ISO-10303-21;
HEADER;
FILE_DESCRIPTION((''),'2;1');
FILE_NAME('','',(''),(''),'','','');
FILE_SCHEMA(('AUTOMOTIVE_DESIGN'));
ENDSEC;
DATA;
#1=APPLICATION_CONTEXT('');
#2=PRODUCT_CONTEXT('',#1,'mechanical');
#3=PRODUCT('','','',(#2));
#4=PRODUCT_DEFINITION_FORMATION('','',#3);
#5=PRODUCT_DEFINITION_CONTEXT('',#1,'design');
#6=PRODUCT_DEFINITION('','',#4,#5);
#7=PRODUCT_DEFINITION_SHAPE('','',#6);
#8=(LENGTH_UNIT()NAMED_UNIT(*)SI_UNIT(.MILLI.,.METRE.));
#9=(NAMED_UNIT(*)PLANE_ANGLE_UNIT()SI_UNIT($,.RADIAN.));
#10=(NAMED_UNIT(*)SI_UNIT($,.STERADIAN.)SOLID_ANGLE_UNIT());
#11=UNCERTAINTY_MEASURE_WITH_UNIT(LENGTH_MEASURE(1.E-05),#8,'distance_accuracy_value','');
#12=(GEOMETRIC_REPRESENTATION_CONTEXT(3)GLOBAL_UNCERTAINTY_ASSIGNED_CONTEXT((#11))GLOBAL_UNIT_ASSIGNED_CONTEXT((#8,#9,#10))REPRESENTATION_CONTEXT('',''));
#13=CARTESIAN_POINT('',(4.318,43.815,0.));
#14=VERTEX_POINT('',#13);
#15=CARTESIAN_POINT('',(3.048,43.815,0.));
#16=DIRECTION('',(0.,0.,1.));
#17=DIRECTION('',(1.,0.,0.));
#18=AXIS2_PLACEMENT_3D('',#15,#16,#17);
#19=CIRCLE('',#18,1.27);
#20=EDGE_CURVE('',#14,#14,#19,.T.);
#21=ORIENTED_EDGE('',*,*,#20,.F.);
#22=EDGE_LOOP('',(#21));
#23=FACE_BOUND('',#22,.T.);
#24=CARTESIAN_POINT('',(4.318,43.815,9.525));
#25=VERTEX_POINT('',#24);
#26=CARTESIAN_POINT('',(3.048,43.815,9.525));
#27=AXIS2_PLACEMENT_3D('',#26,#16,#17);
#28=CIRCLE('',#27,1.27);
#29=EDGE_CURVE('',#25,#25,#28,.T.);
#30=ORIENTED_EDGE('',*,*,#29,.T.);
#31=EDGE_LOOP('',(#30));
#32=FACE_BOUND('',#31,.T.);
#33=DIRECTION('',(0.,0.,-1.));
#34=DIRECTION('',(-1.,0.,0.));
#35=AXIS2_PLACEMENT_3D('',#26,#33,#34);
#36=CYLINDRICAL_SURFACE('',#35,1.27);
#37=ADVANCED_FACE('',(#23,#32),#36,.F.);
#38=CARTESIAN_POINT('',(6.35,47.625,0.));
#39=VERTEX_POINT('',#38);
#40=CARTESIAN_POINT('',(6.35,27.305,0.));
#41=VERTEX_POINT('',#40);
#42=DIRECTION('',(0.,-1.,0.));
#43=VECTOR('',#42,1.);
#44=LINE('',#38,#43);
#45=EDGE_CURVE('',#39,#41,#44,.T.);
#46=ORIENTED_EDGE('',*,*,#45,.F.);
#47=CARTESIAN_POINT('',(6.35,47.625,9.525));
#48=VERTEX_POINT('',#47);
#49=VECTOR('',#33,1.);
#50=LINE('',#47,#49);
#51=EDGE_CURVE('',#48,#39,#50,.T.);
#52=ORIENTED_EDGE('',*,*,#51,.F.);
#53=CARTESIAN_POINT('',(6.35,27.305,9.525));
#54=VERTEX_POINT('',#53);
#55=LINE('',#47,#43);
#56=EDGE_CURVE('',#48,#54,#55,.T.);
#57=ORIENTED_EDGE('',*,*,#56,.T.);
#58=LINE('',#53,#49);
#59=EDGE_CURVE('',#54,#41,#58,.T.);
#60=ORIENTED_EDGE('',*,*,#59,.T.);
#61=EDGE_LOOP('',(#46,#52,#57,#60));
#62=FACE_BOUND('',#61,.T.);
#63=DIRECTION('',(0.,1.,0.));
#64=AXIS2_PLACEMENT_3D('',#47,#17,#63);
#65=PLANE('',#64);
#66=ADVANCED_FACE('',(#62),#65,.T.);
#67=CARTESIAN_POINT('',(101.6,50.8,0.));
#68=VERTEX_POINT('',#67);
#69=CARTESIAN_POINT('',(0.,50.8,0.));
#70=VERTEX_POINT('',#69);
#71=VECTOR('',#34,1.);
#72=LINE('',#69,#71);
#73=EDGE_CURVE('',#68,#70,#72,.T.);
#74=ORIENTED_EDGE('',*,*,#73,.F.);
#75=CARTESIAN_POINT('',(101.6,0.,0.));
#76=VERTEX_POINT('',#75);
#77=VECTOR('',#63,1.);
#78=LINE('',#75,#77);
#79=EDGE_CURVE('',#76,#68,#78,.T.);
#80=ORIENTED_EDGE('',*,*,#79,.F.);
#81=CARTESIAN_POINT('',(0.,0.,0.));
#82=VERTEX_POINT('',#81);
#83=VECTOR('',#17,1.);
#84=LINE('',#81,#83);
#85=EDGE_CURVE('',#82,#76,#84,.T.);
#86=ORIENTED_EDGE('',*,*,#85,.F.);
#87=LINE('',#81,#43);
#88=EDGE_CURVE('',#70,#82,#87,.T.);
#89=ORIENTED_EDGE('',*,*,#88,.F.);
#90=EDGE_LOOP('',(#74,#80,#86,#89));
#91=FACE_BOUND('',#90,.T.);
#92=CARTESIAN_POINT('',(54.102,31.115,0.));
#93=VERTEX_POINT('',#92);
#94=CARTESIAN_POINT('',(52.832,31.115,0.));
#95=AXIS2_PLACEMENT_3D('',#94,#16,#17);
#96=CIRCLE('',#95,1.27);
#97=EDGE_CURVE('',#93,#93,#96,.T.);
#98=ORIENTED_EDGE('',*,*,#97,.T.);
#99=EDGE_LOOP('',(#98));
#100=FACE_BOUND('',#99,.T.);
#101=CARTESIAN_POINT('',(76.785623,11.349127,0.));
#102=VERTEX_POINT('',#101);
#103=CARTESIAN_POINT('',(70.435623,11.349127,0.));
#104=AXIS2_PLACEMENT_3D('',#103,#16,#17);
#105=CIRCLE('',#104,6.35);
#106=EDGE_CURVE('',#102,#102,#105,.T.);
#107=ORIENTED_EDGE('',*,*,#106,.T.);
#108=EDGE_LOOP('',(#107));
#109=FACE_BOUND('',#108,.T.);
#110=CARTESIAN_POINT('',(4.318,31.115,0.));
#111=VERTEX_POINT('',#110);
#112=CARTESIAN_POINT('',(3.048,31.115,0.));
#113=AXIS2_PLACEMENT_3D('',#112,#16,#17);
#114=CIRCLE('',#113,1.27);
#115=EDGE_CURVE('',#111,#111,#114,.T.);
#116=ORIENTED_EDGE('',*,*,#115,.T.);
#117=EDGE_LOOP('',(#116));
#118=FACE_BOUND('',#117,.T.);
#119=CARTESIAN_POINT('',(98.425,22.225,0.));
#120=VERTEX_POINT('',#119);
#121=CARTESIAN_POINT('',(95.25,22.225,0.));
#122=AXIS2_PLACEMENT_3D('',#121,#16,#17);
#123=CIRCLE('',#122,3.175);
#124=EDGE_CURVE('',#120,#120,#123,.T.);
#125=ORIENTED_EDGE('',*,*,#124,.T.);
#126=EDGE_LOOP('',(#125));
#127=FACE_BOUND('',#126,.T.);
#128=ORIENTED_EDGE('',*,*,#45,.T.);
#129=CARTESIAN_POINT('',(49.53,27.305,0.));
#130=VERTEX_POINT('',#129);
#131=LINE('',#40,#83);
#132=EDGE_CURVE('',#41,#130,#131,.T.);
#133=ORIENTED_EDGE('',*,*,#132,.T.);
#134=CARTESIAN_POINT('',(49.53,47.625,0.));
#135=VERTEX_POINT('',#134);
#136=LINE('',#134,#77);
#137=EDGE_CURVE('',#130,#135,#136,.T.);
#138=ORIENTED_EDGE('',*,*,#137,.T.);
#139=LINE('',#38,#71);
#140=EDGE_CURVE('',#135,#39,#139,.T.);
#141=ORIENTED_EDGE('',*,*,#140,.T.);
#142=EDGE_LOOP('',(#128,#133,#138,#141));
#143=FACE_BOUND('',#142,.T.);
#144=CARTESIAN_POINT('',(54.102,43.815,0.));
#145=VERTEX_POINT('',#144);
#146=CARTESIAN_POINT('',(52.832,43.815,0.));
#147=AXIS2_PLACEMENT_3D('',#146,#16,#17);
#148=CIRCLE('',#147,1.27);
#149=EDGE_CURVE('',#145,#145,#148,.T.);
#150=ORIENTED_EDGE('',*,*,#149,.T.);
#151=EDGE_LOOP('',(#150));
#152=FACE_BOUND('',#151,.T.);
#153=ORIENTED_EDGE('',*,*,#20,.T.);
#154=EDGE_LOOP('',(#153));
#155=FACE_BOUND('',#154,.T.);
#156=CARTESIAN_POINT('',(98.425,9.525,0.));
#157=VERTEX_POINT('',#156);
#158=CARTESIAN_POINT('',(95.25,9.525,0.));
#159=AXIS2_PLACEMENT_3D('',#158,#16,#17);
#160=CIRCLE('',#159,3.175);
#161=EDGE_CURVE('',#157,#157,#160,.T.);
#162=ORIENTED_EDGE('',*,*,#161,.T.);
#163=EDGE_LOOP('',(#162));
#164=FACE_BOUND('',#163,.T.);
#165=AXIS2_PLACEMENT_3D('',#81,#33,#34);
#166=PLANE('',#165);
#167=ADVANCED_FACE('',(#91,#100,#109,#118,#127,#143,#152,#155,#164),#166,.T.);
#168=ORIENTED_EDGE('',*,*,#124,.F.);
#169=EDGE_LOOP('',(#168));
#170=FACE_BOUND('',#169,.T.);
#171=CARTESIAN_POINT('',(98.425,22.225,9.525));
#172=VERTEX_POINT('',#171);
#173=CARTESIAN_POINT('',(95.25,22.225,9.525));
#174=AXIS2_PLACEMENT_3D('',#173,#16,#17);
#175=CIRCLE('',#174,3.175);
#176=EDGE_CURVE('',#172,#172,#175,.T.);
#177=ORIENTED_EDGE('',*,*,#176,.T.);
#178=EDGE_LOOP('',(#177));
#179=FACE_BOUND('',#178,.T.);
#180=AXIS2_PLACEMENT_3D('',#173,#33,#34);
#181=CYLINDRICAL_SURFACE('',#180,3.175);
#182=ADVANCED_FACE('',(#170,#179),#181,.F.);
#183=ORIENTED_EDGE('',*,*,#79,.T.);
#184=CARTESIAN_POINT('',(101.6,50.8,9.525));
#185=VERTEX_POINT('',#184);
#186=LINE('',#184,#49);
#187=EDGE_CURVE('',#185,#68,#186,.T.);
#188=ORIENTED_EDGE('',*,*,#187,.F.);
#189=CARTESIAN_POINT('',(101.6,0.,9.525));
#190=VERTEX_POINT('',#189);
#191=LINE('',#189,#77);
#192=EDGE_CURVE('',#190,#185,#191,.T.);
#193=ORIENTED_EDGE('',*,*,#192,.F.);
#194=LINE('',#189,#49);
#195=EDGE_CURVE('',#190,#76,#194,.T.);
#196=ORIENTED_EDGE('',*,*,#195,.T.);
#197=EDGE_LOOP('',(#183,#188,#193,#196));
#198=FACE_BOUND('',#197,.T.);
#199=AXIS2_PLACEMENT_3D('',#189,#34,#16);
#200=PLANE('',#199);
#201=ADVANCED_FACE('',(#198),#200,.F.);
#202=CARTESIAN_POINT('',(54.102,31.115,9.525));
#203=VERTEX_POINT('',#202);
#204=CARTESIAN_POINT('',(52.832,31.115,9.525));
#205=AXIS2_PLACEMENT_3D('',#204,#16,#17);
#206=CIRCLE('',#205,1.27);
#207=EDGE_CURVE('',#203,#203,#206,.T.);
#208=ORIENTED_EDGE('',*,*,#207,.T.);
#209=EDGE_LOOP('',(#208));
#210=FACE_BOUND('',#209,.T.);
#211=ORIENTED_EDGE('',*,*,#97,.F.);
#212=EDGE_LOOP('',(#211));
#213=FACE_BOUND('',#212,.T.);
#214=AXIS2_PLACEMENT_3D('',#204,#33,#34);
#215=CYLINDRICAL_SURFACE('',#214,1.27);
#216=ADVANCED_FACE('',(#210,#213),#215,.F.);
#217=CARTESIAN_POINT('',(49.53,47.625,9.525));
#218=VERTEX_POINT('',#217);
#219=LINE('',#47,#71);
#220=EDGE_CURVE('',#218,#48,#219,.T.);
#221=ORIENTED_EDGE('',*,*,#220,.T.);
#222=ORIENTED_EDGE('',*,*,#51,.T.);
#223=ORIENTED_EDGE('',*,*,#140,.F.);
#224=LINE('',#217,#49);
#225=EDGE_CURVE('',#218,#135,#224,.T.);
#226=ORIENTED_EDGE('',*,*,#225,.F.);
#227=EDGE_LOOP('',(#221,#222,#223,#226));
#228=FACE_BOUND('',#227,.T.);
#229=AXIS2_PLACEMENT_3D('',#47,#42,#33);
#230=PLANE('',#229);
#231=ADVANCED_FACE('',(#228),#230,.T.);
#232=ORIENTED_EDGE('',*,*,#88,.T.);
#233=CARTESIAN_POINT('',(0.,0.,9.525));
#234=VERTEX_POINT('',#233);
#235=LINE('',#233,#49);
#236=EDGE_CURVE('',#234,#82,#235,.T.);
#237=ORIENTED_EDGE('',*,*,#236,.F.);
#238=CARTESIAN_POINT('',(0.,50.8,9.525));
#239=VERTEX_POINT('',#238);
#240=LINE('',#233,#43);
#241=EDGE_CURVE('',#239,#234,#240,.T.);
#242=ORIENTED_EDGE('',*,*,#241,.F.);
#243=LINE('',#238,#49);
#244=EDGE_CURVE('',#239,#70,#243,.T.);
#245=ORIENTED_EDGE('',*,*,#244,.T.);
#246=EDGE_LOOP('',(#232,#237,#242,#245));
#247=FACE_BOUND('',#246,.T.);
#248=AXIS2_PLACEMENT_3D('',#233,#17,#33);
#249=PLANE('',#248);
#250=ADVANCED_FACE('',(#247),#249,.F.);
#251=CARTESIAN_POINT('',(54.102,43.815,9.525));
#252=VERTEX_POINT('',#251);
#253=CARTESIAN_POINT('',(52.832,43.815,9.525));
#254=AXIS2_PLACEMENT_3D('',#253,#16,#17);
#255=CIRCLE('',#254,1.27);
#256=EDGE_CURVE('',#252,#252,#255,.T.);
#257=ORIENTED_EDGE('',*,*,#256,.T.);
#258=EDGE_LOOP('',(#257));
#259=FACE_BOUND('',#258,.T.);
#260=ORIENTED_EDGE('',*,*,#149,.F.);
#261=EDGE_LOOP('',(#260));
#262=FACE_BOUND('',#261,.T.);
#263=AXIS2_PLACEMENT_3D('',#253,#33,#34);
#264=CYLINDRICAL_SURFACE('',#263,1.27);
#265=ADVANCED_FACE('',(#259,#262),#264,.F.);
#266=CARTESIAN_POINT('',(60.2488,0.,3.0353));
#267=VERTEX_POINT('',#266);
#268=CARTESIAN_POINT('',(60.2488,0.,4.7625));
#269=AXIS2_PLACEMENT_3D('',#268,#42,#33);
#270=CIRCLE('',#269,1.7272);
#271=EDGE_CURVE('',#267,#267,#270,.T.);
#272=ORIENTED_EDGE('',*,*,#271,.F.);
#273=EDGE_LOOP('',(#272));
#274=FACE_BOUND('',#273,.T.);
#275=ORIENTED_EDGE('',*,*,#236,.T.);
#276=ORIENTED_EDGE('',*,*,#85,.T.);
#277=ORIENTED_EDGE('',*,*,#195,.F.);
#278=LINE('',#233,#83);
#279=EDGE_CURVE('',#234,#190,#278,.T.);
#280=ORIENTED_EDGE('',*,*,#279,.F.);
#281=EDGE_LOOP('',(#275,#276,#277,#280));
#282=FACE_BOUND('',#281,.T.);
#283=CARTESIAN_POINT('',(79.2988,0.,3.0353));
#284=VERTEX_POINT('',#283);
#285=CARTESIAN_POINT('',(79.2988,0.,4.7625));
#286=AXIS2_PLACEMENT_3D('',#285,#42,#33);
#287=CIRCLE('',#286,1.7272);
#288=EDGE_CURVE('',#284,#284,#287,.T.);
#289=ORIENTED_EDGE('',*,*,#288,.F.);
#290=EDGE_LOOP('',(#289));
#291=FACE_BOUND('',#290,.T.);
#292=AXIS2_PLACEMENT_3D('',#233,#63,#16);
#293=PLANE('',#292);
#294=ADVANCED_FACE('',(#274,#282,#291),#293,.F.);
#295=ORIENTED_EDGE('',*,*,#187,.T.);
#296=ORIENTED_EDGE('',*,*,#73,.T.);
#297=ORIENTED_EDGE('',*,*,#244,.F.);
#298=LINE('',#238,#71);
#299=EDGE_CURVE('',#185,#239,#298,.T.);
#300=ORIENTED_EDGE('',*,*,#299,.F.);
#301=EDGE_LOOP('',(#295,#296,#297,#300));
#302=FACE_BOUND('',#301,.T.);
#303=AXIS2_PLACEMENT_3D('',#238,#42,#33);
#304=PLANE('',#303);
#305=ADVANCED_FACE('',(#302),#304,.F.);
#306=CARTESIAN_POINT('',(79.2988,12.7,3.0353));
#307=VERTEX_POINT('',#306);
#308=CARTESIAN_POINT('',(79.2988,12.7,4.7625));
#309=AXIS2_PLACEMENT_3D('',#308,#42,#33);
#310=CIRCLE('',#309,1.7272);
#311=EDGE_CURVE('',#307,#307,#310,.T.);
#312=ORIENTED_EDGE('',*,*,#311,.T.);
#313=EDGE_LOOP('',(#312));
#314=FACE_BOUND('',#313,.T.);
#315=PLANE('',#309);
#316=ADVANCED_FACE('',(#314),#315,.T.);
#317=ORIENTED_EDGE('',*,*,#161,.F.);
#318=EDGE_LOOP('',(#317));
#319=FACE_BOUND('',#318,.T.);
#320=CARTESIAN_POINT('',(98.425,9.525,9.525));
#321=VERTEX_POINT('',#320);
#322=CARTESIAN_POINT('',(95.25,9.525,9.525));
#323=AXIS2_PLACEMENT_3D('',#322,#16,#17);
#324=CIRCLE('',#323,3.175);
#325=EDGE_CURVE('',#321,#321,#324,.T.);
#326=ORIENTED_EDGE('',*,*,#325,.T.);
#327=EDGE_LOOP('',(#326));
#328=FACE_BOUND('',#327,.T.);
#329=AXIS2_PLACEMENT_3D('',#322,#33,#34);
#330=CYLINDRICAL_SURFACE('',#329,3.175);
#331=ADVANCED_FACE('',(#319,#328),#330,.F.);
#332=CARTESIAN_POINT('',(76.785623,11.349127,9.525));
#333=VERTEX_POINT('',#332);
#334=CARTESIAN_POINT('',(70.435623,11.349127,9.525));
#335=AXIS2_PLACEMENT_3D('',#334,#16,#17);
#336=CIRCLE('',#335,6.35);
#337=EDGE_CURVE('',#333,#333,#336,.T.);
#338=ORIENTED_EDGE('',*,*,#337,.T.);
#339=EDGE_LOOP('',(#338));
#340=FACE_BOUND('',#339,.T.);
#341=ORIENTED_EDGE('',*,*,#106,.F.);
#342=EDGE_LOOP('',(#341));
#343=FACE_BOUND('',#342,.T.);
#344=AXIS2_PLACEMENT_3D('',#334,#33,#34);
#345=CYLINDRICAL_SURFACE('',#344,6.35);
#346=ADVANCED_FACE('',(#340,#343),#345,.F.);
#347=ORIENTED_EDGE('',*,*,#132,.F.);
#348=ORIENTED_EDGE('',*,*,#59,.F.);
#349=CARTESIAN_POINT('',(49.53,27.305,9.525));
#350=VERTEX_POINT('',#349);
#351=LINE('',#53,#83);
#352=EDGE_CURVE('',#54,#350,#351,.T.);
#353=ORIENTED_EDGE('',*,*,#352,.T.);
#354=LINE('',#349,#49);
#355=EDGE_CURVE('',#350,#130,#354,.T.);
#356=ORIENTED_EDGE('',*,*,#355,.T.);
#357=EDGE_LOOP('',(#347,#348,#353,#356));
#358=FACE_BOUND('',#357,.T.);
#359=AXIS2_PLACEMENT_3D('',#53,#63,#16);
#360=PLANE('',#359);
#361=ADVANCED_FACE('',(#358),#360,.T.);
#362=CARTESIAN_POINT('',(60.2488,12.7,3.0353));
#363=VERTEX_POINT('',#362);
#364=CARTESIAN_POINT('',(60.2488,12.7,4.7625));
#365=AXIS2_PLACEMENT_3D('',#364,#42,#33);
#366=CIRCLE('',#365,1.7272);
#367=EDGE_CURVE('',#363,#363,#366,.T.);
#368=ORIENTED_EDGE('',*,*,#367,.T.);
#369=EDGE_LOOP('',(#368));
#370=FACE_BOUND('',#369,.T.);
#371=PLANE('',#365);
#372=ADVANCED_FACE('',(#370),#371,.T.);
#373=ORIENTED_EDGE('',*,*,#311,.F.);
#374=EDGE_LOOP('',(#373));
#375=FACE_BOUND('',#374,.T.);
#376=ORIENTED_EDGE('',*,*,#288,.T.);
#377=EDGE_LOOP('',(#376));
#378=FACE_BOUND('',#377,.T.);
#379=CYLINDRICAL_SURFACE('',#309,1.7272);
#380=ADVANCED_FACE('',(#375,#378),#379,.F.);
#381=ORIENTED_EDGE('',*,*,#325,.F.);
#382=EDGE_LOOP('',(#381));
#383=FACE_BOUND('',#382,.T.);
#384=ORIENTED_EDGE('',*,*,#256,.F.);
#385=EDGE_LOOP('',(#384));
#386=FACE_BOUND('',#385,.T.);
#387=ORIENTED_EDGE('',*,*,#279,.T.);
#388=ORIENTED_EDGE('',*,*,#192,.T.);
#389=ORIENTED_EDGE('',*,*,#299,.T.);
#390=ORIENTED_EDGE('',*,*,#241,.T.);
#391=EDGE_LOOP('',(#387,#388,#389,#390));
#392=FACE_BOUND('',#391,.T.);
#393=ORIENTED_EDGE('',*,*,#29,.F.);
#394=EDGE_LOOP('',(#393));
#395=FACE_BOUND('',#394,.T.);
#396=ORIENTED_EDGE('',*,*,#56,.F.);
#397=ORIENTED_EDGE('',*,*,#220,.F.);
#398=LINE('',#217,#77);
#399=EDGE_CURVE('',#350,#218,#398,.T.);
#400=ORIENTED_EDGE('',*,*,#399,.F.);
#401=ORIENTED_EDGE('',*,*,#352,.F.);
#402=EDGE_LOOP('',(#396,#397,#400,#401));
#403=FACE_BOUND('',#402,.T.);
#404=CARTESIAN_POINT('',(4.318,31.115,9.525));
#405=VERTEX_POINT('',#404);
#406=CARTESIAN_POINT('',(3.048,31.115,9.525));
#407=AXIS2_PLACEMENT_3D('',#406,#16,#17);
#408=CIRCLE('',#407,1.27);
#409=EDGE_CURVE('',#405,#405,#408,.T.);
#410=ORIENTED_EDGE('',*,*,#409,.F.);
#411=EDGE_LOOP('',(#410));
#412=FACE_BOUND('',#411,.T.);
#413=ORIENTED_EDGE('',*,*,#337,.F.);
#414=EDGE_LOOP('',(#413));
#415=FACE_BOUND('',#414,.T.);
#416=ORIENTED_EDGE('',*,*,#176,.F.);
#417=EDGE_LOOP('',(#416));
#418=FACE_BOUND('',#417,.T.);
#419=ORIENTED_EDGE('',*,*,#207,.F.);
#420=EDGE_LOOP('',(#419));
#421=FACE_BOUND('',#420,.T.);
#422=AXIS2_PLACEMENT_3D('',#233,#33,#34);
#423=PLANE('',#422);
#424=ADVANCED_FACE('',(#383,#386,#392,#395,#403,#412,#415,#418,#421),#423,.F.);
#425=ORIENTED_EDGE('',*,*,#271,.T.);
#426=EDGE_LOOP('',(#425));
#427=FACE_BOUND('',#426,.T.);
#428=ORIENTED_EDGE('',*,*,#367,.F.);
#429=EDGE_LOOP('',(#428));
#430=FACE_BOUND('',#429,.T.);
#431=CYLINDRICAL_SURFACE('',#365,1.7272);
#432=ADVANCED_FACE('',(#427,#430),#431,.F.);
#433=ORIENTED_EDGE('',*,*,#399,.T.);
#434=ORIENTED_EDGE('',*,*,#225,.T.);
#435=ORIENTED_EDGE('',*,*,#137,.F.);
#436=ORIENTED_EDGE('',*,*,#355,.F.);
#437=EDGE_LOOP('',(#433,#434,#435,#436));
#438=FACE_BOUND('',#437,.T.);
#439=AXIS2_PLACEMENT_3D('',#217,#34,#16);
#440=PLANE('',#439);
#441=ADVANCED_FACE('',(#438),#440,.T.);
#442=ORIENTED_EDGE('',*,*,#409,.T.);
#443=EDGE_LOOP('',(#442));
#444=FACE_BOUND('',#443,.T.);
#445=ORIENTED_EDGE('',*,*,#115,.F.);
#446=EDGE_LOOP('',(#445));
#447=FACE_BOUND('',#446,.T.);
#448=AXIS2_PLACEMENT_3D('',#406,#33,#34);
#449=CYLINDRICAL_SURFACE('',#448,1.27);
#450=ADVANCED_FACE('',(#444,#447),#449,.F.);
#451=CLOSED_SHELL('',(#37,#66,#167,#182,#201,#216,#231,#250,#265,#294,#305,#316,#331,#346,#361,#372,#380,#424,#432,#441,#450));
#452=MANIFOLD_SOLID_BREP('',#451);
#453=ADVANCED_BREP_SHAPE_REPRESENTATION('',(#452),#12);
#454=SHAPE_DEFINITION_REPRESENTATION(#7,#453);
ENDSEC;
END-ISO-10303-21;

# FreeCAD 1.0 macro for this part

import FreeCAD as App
import Part
import Sketcher
from FreeCAD import Vector
Q = App.Units.Quantity


def add_polygon(sketch, points):
    """Adds a closed chain of lines whose ends are joined by coincident constraints."""
    first, n = sketch.GeometryCount, len(points)
    for a, b in zip(points, points[1:] + points[:1]):
        sketch.addGeometry(Part.LineSegment(App.Vector(*a, 0), App.Vector(*b, 0)), False)
    for i in range(n):
        sketch.addConstraint(Sketcher.Constraint("Coincident", first + i, 2, first + (i + 1) % n, 1))

doc = App.newDocument("Part")
params = doc.addObject("Spreadsheet::Sheet", "Params")
for row, (alias, value) in enumerate([
    ("sketch1_diameter", "0.5 in"),
    ("sketch1_diameter2", "0.1 in"),
    ("sketch1_diameter3", "0.25 in"),
    ("sketch1_width", "4 in"),
    ("sketch1_height", "2 in"),
    ("pad1_length", "0.375 in"),
    ("sketch2_diameter", "0.136 in"),
    ("pocket1_length", "0.5 in"),
], start=1):
    params.set(f"A{row}", alias)
    params.set(f"B{row}", "=" + value)
    params.setAlias(f"B{row}", alias)

body = doc.addObject("PartDesign::Body", "Body")

# Sketch on XY plane
sketch1 = body.newObject("Sketcher::SketchObject", "Sketch")
sketch1.AttachmentSupport = (doc.getObject("XY_Plane"), [""])
sketch1.MapMode = "FlatFace"
add_polygon(sketch1, [(0, 50.8), (0, 0), (101.6, 0), (101.6, 50.8)])  # lines 0-3
sketch1.addGeometry(Part.Circle(Vector(70.4, 11.3, 0), Vector(0, 0, 1), 6.3), False)  # 4
sketch1.addGeometry(Part.Circle(Vector(95.2, 9.5, 0), Vector(0, 0, 1), 3.2), False)  # 5
sketch1.addGeometry(Part.Circle(Vector(95.2, 22.2, 0), Vector(0, 0, 1), 3.2), False)  # 6
sketch1.addGeometry(Part.Circle(Vector(3, 31.1, 0), Vector(0, 0, 1), 1.3), False)  # 7
sketch1.addGeometry(Part.Circle(Vector(3, 43.8, 0), Vector(0, 0, 1), 1.3), False)  # 8
add_polygon(sketch1, [(49.5, 27.3), (6.3, 27.3), (6.3, 47.6), (49.5, 47.6)])  # lines 9-12
sketch1.addGeometry(Part.Circle(Vector(52.8, 31.1, 0), Vector(0, 0, 1), 1.3), False)  # 13
sketch1.addGeometry(Part.Circle(Vector(52.8, 43.8, 0), Vector(0, 0, 1), 1.3), False)  # 14
sketch1.addConstraint(Sketcher.Constraint("Vertical", 0))
sketch1.addConstraint(Sketcher.Constraint("Horizontal", 1))
sketch1.addConstraint(Sketcher.Constraint("Vertical", 2))
sketch1.addConstraint(Sketcher.Constraint("Horizontal", 3))
sketch1.addConstraint(Sketcher.Constraint("Horizontal", 9))
sketch1.addConstraint(Sketcher.Constraint("Vertical", 10))
sketch1.addConstraint(Sketcher.Constraint("Horizontal", 11))
sketch1.addConstraint(Sketcher.Constraint("Vertical", 12))
sketch1.addConstraint(Sketcher.Constraint("Coincident", 0, 2, -1, 1))
sketch1.addConstraint(Sketcher.Constraint("Equal", 5, 6))
sketch1.addConstraint(Sketcher.Constraint("Equal", 7, 8))
sketch1.addConstraint(Sketcher.Constraint("Equal", 8, 13))
sketch1.addConstraint(Sketcher.Constraint("Equal", 13, 14))
sketch1.addConstraint(Sketcher.Constraint("Horizontal", 7, 3, 13, 3))
sketch1.addConstraint(Sketcher.Constraint("Horizontal", 8, 3, 14, 3))
sketch1.addConstraint(Sketcher.Constraint("Vertical", 5, 3, 6, 3))
sketch1.addConstraint(Sketcher.Constraint("Vertical", 7, 3, 8, 3))
sketch1.addConstraint(Sketcher.Constraint("Vertical", 13, 3, 14, 3))
sketch1.addConstraint(Sketcher.Constraint("Diameter", 4, Q("0.5 in")))
sketch1.addConstraint(Sketcher.Constraint("Diameter", 7, Q("0.1 in")))
sketch1.addConstraint(Sketcher.Constraint("Diameter", 5, Q("0.25 in")))
sketch1.addConstraint(Sketcher.Constraint("DistanceX", 1, 1, 1, 2, Q("4 in")))
sketch1.addConstraint(Sketcher.Constraint("DistanceY", 0, 2, 0, 1, Q("2 in")))
sketch1.addConstraint(Sketcher.Constraint("DistanceX", 9, 2, 9, 1, Q("1.7 in")))
sketch1.addConstraint(Sketcher.Constraint("DistanceY", 10, 1, 10, 2, Q("0.8 in")))
sketch1.addConstraint(Sketcher.Constraint("DistanceY", 5, 3, 6, 3, Q("0.5 in")))
sketch1.addConstraint(Sketcher.Constraint("DistanceY", 7, 3, 8, 3, Q("0.5 in")))
sketch1.addConstraint(Sketcher.Constraint("DistanceX", -1, 1, 5, 3, Q("3.75 in")))
sketch1.addConstraint(Sketcher.Constraint("DistanceX", -1, 1, 7, 3, Q("0.12 in")))
sketch1.addConstraint(Sketcher.Constraint("DistanceX", -1, 1, 13, 3, Q("2.08 in")))
sketch1.addConstraint(Sketcher.Constraint("DistanceX", -1, 1, 9, 2, Q("0.25 in")))
sketch1.addConstraint(Sketcher.Constraint("DistanceY", 6, 3, 7, 3, Q("0.35 in")))
sketch1.addConstraint(Sketcher.Constraint("DistanceY", 9, 2, 7, 3, Q("0.15 in")))
sketch1.addConstraint(Sketcher.Constraint("DistanceY", -1, 1, 5, 3, Q("0.375 in")))
sketch1.addConstraint(Sketcher.Constraint("DistanceX", -1, 1, 4, 3, 70.435623))
sketch1.addConstraint(Sketcher.Constraint("DistanceY", -1, 1, 4, 3, 11.349127))
sketch1.setExpression("Constraints[26]", "Params.sketch1_diameter")
sketch1.setExpression("Constraints[27]", "Params.sketch1_diameter2")
sketch1.setExpression("Constraints[28]", "Params.sketch1_diameter3")
sketch1.setExpression("Constraints[29]", "Params.sketch1_width")
sketch1.setExpression("Constraints[30]", "Params.sketch1_height")
pad1 = body.newObject("PartDesign::Pad", "Pad")
pad1.Profile = sketch1
pad1.setExpression("Length", "Params.pad1_length")

# Sketch on XZ plane
sketch2 = body.newObject("Sketcher::SketchObject", "Sketch001")
sketch2.AttachmentSupport = (doc.getObject("XZ_Plane"), [""])
sketch2.MapMode = "FlatFace"
sketch2.addGeometry(Part.Circle(Vector(60.2, 4.8, 0), Vector(0, 0, 1), 1.7), False)
sketch2.addGeometry(Part.Circle(Vector(79.3, 4.8, 0), Vector(0, 0, 1), 1.7), False)
sketch2.addConstraint(Sketcher.Constraint("Equal", 0, 1))
sketch2.addConstraint(Sketcher.Constraint("Horizontal", 0, 3, 1, 3))
sketch2.addConstraint(Sketcher.Constraint("Diameter", 0, Q("0.136 in")))
sketch2.addConstraint(Sketcher.Constraint("DistanceX", 0, 3, 1, 3, Q("0.75 in")))
sketch2.addConstraint(Sketcher.Constraint("DistanceX", -1, 1, 0, 3, Q("2.372 in")))
sketch2.addConstraint(Sketcher.Constraint("DistanceY", -1, 1, 0, 3, Q("0.1875 in")))
sketch2.setExpression("Constraints[2]", "Params.sketch2_diameter")
pocket1 = body.newObject("PartDesign::Pocket", "Pocket")
pocket1.Profile = sketch2
pocket1.setExpression("Length", "Params.pocket1_length")

doc.recompute()
